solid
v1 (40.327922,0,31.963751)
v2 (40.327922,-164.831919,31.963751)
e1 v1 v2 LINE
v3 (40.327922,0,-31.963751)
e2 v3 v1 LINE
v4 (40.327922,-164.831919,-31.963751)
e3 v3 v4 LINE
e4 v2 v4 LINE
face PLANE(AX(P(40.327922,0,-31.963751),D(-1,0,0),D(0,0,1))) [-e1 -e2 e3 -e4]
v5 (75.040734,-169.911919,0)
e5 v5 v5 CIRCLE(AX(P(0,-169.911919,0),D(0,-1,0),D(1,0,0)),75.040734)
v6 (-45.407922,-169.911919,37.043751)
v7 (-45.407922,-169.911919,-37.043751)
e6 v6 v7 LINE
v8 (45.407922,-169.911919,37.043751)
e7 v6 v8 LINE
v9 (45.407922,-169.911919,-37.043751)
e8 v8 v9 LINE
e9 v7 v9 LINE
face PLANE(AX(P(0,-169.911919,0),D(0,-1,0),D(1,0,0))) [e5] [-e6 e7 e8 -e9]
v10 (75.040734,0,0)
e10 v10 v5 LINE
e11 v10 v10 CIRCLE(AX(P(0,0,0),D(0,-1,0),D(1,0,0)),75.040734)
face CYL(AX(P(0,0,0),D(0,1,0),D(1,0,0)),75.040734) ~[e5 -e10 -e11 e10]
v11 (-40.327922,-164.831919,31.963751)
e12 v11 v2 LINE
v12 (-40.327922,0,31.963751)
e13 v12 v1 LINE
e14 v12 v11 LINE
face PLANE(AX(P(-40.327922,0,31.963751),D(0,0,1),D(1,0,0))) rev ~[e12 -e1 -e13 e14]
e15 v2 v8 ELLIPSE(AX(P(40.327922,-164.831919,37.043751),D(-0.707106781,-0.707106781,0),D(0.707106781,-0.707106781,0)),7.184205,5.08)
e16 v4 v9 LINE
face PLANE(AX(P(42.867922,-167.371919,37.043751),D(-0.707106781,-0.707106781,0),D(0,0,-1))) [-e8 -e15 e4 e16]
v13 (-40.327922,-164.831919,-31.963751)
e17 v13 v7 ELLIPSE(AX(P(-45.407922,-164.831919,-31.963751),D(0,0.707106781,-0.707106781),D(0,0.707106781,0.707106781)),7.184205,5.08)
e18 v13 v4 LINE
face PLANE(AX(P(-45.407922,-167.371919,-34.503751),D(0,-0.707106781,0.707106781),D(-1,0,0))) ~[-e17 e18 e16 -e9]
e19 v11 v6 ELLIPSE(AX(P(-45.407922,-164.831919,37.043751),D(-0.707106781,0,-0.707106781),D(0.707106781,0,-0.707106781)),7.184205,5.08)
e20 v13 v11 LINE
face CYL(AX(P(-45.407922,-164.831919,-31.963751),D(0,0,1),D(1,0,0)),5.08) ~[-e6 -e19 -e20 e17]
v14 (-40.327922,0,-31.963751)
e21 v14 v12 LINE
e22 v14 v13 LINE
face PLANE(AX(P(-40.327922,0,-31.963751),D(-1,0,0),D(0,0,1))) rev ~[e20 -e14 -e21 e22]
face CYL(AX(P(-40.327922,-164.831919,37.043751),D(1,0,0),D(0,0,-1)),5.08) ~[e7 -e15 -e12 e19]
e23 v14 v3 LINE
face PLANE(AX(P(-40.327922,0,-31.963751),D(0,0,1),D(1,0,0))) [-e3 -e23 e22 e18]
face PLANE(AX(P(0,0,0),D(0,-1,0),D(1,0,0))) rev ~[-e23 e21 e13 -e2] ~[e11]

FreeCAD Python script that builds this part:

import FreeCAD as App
import Part
import Sketcher
Q = App.Units.Quantity


def edges_at(feature, points):
    """Names of the edges that pass closest to the given points."""
    edges = feature.Shape.Edges
    near = lambda p: min(range(len(edges)), key=lambda i: edges[i].distToShape(Part.Vertex(*p))[0])
    return sorted({f"Edge{near(p) + 1}" for p in points})

doc = App.newDocument("Part")
body = doc.addObject("PartDesign::Body", "Body")

# Sketch on XZ plane
sketch1 = body.newObject("Sketcher::SketchObject", "Sketch")
sketch1.AttachmentSupport = (doc.getObject("XZ_Plane"), [""])
sketch1.MapMode = "FlatFace"
sketch1.addGeometry(Part.Circle(App.Vector(0, 0, 0), App.Vector(0, 0, 1), 75), False)
sketch1.addGeometry(Part.LineSegment(App.Vector(40, -32, 0), App.Vector(-40, -32, 0)), False)
sketch1.addGeometry(Part.LineSegment(App.Vector(-40, -32, 0), App.Vector(-40, 32, 0)), False)
sketch1.addGeometry(Part.LineSegment(App.Vector(-40, 32, 0), App.Vector(40, 32, 0)), False)
sketch1.addGeometry(Part.LineSegment(App.Vector(40, 32, 0), App.Vector(40, -32, 0)), False)
sketch1.addConstraint(Sketcher.Constraint("Coincident", 1, 2, 2, 1))
sketch1.addConstraint(Sketcher.Constraint("Coincident", 2, 2, 3, 1))
sketch1.addConstraint(Sketcher.Constraint("Coincident", 3, 2, 4, 1))
sketch1.addConstraint(Sketcher.Constraint("Coincident", 4, 2, 1, 1))
sketch1.addConstraint(Sketcher.Constraint("Horizontal", 1))
sketch1.addConstraint(Sketcher.Constraint("Vertical", 2))
sketch1.addConstraint(Sketcher.Constraint("Horizontal", 3))
sketch1.addConstraint(Sketcher.Constraint("Vertical", 4))
sketch1.addConstraint(Sketcher.Constraint("Coincident", 0, 3, -1, 1))
sketch1.addConstraint(Sketcher.Constraint("Symmetric", 1, 2, 3, 2, -1, 1))
sketch1.addConstraint(Sketcher.Constraint("Diameter", 0, Q("150.081468 mm")))
sketch1.addConstraint(Sketcher.Constraint("DistanceY", 2, 1, 2, 2, Q("63.927502 mm")))
sketch1.addConstraint(Sketcher.Constraint("DistanceX", 1, 2, 1, 1, Q("80.655844 mm")))
pad1 = body.newObject("PartDesign::Pad", "Pad")
pad1.Profile = sketch1
pad1.Length = 169.911919
doc.recompute()

fillet = body.newObject("PartDesign::Fillet", "Fillet")
fillet.Base = (pad1, edges_at(pad1, [(0, -169.912, 31.964), (-40.328, -169.912, 0)]))
fillet.Radius = Q("0.2 in")
doc.recompute()

chamfer = body.newObject("PartDesign::Chamfer", "Chamfer")
chamfer.Base = (fillet, edges_at(fillet, [(40.328, -169.912, 2.54), (-2.54, -169.912, -31.964)]))
chamfer.Size = Q("0.2 in")

doc.recompute()
